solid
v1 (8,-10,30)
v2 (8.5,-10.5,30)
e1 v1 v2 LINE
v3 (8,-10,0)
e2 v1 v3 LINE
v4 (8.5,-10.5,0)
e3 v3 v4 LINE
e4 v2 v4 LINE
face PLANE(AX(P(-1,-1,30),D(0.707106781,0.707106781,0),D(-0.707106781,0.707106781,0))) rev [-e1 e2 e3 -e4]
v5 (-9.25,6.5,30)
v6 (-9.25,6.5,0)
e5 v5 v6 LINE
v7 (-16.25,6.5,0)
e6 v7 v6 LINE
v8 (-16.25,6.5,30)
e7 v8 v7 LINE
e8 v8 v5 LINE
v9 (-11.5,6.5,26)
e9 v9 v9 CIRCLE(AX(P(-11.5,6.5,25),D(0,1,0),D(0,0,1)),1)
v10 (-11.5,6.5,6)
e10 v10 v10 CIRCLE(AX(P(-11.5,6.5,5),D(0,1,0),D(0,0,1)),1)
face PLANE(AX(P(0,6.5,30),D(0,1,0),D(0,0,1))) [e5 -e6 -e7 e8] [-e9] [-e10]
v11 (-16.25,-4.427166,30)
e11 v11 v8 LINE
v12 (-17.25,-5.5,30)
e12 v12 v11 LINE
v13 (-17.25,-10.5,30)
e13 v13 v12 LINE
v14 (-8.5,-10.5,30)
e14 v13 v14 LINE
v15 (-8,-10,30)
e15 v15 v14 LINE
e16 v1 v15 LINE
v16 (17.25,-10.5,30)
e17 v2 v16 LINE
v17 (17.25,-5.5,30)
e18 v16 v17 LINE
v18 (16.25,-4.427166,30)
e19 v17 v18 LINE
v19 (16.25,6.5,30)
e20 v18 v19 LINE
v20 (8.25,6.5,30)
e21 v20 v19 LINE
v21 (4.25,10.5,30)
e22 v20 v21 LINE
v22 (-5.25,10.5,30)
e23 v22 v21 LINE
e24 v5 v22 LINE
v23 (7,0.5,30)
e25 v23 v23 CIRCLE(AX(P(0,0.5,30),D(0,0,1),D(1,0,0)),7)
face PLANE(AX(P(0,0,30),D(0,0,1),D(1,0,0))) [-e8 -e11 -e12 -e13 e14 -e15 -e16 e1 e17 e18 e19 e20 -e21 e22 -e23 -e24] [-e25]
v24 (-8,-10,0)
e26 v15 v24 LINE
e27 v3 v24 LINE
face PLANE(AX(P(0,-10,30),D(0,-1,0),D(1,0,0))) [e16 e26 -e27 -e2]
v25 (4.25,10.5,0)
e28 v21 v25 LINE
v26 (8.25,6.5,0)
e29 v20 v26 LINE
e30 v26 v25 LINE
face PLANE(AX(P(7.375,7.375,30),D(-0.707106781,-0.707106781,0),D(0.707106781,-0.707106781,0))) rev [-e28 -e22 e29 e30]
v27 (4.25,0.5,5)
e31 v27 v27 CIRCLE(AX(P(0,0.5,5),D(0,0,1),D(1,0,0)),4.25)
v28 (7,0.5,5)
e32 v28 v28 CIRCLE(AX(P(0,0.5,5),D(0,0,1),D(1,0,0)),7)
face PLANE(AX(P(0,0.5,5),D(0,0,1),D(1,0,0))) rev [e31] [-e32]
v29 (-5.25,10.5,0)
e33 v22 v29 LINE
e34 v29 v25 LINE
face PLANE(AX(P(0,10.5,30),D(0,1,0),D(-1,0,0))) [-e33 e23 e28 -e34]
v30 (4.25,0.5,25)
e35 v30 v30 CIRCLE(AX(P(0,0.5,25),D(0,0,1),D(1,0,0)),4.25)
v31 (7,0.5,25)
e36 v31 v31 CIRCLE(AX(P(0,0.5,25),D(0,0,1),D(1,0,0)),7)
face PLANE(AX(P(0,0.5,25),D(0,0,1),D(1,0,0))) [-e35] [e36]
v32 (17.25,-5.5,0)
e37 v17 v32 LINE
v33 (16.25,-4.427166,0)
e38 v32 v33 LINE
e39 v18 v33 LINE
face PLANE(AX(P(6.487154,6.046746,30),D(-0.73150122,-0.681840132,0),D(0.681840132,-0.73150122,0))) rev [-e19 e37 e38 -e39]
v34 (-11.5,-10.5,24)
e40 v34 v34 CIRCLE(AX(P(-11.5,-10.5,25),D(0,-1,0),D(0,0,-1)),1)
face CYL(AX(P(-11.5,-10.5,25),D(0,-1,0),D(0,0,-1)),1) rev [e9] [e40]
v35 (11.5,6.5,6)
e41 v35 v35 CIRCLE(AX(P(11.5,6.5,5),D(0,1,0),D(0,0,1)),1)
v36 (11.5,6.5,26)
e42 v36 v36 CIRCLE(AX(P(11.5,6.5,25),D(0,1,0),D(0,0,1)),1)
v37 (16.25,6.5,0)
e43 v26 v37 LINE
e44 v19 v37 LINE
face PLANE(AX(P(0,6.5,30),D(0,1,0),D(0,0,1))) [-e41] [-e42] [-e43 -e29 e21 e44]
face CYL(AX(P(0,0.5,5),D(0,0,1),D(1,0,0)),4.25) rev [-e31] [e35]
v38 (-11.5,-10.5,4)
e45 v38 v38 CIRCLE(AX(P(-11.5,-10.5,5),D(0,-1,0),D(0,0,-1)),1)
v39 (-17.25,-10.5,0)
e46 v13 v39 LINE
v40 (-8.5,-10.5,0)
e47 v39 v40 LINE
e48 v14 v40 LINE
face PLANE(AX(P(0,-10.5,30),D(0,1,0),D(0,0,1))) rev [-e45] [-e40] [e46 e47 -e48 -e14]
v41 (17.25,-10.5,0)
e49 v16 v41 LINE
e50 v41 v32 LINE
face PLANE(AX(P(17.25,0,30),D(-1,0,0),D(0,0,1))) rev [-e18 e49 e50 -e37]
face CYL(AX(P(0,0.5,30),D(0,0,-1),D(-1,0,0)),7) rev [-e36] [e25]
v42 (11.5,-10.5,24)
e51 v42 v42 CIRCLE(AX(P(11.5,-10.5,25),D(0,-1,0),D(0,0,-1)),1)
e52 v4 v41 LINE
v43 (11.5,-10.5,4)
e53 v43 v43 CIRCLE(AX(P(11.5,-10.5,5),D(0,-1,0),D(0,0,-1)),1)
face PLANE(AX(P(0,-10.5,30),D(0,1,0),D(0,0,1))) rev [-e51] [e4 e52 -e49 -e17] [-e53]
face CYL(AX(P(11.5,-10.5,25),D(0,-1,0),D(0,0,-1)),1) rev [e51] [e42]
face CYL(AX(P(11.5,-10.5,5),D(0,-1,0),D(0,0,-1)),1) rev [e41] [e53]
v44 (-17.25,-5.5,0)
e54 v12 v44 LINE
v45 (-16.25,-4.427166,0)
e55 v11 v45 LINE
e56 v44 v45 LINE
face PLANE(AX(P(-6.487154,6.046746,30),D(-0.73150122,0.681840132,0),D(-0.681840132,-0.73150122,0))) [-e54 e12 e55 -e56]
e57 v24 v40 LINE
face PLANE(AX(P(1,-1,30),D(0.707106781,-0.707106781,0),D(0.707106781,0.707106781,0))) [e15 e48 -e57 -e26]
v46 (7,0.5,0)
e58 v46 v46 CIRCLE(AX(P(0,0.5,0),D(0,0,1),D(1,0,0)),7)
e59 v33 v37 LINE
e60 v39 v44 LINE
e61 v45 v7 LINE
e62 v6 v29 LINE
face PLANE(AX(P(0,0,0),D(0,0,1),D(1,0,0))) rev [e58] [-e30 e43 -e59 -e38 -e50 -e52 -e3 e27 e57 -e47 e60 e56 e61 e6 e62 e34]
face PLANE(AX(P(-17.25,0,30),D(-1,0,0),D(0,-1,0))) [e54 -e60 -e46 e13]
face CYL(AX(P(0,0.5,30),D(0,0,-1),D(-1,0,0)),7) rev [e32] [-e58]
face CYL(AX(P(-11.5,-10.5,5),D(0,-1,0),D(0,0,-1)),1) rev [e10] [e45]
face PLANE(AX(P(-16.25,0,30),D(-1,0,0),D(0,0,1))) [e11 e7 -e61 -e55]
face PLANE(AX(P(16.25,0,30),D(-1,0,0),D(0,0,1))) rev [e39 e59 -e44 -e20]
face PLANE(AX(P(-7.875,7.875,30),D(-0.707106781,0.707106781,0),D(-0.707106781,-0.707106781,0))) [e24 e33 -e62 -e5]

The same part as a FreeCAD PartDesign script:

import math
import FreeCAD as App
import Part
import Sketcher
Q = App.Units.Quantity


def add_polygon(sketch, points):
    """Adds a closed chain of lines whose ends are joined by coincident constraints."""
    first, n = sketch.GeometryCount, len(points)
    for a, b in zip(points, points[1:] + points[:1]):
        sketch.addGeometry(Part.LineSegment(App.Vector(*a, 0), App.Vector(*b, 0)), False)
    for i in range(n):
        sketch.addConstraint(Sketcher.Constraint("Coincident", first + i, 2, first + (i + 1) % n, 1))

doc = App.newDocument("Part")
body = doc.addObject("PartDesign::Body", "Body")

# Sketch on XY plane
sketch1 = body.newObject("Sketcher::SketchObject", "Sketch")
sketch1.AttachmentSupport = (doc.getObject("XY_Plane"), [""])
sketch1.MapMode = "FlatFace"
add_polygon(sketch1, [(-16.2, 6.5), (-16.2, -4.4), (-17.2, -5.5), (-17.2, -10.5), (-8.5, -10.5), (-8, -10), (8, -10), (8.5, -10.5), (17.2, -10.5), (17.2, -5.5), (16.2, -4.4), (16.2, 6.5), (8.2, 6.5), (4.2, 10.5), (-5.2, 10.5), (-9.2, 6.5)])  # lines 0-15
sketch1.addGeometry(Part.ArcOfCircle(Part.Circle(App.Vector(0, 0.5, 0), App.Vector(0, 0, 1), 7), math.radians(121), math.radians(419)), False)  # 16
sketch1.addGeometry(Part.ArcOfCircle(Part.Circle(App.Vector(0, 0.5, 0), App.Vector(0, 0, 1), 7), math.radians(59), math.radians(121)), False)  # 17
sketch1.addConstraint([
    Sketcher.Constraint("Tangent", 16, 1, 17, 2),
    Sketcher.Constraint("Coincident", 17, 1, 16, 2),
    Sketcher.Constraint("Vertical", 0),
    Sketcher.Constraint("Vertical", 2),
    Sketcher.Constraint("Horizontal", 3),
    Sketcher.Constraint("Horizontal", 5),
    Sketcher.Constraint("Horizontal", 7),
    Sketcher.Constraint("Vertical", 8),
    Sketcher.Constraint("Vertical", 10),
    Sketcher.Constraint("Horizontal", 11),
    Sketcher.Constraint("Horizontal", 13),
    Sketcher.Constraint("Horizontal", 15),
    Sketcher.Constraint("Symmetric", 3, 2, 6, 2, -2),
    Sketcher.Constraint("Symmetric", 1, 2, 8, 2, -2),
    Sketcher.Constraint("Symmetric", 0, 2, 9, 2, -2),
    Sketcher.Constraint("Symmetric", 16, 1, 17, 1, -2),
    Sketcher.Constraint("Perpendicular", 4, 6),
    Sketcher.Constraint("Parallel", 6, 12),
    Sketcher.Constraint("Perpendicular", 12, 14),
    Sketcher.Constraint("Horizontal", 11, 2, 14, 2),
    Sketcher.Constraint("Horizontal", 15, 2, 16, 1),
    Sketcher.Constraint("Equal", 4, 6),
    Sketcher.Constraint("Radius", 16, Q("7 mm")),
    Sketcher.Constraint("DistanceX", 5, 1, 5, 2, Q("16 mm")),
    Sketcher.Constraint("DistanceX", 11, 2, 11, 1, Q("8 mm")),
    Sketcher.Constraint("DistanceX", 15, 2, 15, 1, Q("7 mm")),
    Sketcher.Constraint("DistanceY", 2, 2, 2, 1, Q("5 mm")),
    Sketcher.Constraint("DistanceX", 13, 2, 13, 1, Q("9.5 mm")),
    Sketcher.Constraint("DistanceY", 4, 2, -1, 1, Q("10 mm")),
    Sketcher.Constraint("DistanceX", 1, 2, 0, 2, Q("1 mm")),
    Sketcher.Constraint("DistanceY", 1, 2, 16, 3, Q("6 mm")),
    Sketcher.Constraint("DistanceX", 3, 2, 6, 2, Q("17 mm")),
    Sketcher.Constraint("DistanceY", 8, 2, 10, 2, Q("12 mm")),
    Sketcher.Constraint("DistanceX", 12, 2, 11, 2, Q("4 mm")),
    Sketcher.Constraint("Distance", 1, Q("1.466619 mm")),
])
pad1 = body.newObject("PartDesign::Pad", "Pad")
pad1.Profile = sketch1
pad1.Length = 30

# Sketch on XY plane
sketch2 = body.newObject("Sketcher::SketchObject", "Sketch001")
sketch2.AttachmentSupport = (doc.getObject("XY_Plane"), [""])
sketch2.MapMode = "FlatFace"
sketch2.AttachmentOffset = App.Placement(App.Vector(0, 0, 5), App.Rotation())
sketch2.addGeometry([
    Part.Circle(App.Vector(0, 0.5, 0), App.Vector(0, 0, 1), 7),
    Part.Circle(App.Vector(0, 0.5, 0), App.Vector(0, 0, 1), 4.2),
], False)
sketch2.addConstraint([
    Sketcher.Constraint("Coincident", 1, 3, 0, 3),
    Sketcher.Constraint("PointOnObject", 0, 3, -2),
    Sketcher.Constraint("Diameter", 0, Q("14 mm")),
    Sketcher.Constraint("Diameter", 1, Q("8.5 mm")),
    Sketcher.Constraint("DistanceY", -1, 1, 0, 3, Q("0.5 mm")),
])
pad2 = body.newObject("PartDesign::Pad", "Pad001")
pad2.Profile = sketch2
pad2.Length = 20

# Sketch on XZ plane
sketch3 = body.newObject("Sketcher::SketchObject", "Sketch002")
sketch3.AttachmentSupport = (doc.getObject("XZ_Plane"), [""])
sketch3.MapMode = "FlatFace"
sketch3.AttachmentOffset = App.Placement(App.Vector(0, 0, 10.5), App.Rotation())
sketch3.addGeometry([
    Part.Circle(App.Vector(-11.5, 25, 0), App.Vector(0, 0, 1), 1),
    Part.Circle(App.Vector(-11.5, 5, 0), App.Vector(0, 0, 1), 1),
    Part.Circle(App.Vector(11.5, 5, 0), App.Vector(0, 0, 1), 1),
    Part.Circle(App.Vector(11.5, 25, 0), App.Vector(0, 0, 1), 1),
], False)
sketch3.addConstraint([
    Sketcher.Constraint("Equal", 0, 1),
    Sketcher.Constraint("Equal", 1, 2),
    Sketcher.Constraint("Equal", 2, 3),
    Sketcher.Constraint("Symmetric", 1, 3, 2, 3, -2),
    Sketcher.Constraint("Symmetric", 0, 3, 3, 3, -2),
    Sketcher.Constraint("Vertical", 0, 3, 1, 3),
    Sketcher.Constraint("Diameter", 0, Q("2 mm")),
    Sketcher.Constraint("DistanceY", -1, 1, 0, 3, Q("25 mm")),
    Sketcher.Constraint("DistanceY", -1, 1, 1, 3, Q("5 mm")),
    Sketcher.Constraint("DistanceX", 1, 3, 2, 3, Q("23 mm")),
])
doc.recompute()
hole = body.newObject("PartDesign::Hole", "Hole")
hole.Profile = sketch3
hole.ThreadType = "None"
hole.Diameter = 2
hole.DepthType = "ThroughAll"

doc.recompute()
